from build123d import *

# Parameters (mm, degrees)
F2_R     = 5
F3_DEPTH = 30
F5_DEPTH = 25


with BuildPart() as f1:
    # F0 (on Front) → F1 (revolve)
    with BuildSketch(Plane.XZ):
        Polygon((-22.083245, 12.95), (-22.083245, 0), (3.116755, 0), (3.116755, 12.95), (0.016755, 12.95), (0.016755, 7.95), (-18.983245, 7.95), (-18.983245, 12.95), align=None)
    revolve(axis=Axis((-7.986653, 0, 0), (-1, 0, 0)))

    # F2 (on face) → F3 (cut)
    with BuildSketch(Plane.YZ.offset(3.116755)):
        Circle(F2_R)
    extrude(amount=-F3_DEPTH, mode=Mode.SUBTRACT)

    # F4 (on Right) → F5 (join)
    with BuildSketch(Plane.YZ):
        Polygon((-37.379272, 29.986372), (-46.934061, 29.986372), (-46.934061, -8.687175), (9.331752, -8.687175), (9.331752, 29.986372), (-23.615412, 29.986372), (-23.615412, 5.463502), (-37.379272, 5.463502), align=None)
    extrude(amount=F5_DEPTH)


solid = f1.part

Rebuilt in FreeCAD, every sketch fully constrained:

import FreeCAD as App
import Part
import Sketcher
from FreeCAD import Vector
Q = App.Units.Quantity


def add_polygon(sketch, points):
    """Adds a closed chain of lines whose ends are joined by coincident constraints."""
    first, n = sketch.GeometryCount, len(points)
    for a, b in zip(points, points[1:] + points[:1]):
        sketch.addGeometry(Part.LineSegment(App.Vector(*a, 0), App.Vector(*b, 0)), False)
    for i in range(n):
        sketch.addConstraint(Sketcher.Constraint("Coincident", first + i, 2, first + (i + 1) % n, 1))

doc = App.newDocument("Part")
body = doc.addObject("PartDesign::Body", "Body")

# Sketch on XZ plane
sketch1 = doc.addObject("Sketcher::SketchObject", "Sketch")
body.addObject(sketch1)
sketch1.AttachmentSupport = (doc.XZ_Plane, [""])
sketch1.MapMode = "FlatFace"
add_polygon(sketch1, [(-22.1, 12.9), (-22.1, 0), (3.1, 0), (3.1, 12.9), (0, 12.9), (0, 8), (-19, 8), (-19, 12.9)])  # lines 0-7
sketch1.addConstraint(Sketcher.Constraint("Vertical", 0))
sketch1.addConstraint(Sketcher.Constraint("Horizontal", 1))
sketch1.addConstraint(Sketcher.Constraint("Vertical", 2))
sketch1.addConstraint(Sketcher.Constraint("Horizontal", 3))
sketch1.addConstraint(Sketcher.Constraint("Vertical", 4))
sketch1.addConstraint(Sketcher.Constraint("Horizontal", 5))
sketch1.addConstraint(Sketcher.Constraint("Vertical", 6))
sketch1.addConstraint(Sketcher.Constraint("Horizontal", 7))
sketch1.addConstraint(Sketcher.Constraint("PointOnObject", 0, 2, -1))
sketch1.addConstraint(Sketcher.Constraint("Horizontal", 3, 2, 6, 2))
sketch1.addConstraint(Sketcher.Constraint("Equal", 3, 7))
sketch1.addConstraint(Sketcher.Constraint("DistanceX", 5, 2, 5, 1, Q("19 mm")))
sketch1.addConstraint(Sketcher.Constraint("DistanceY", 4, 2, 4, 1, Q("5 mm")))
sketch1.addConstraint(Sketcher.Constraint("DistanceX", 1, 1, 1, 2, Q("25.2 mm")))
sketch1.addConstraint(Sketcher.Constraint("DistanceY", 0, 2, 0, 1, Q("12.95 mm")))
sketch1.addConstraint(Sketcher.Constraint("DistanceX", 0, 2, -1, 1, Q("22.083245 mm")))
revolution = doc.addObject("PartDesign::Revolution", "Revolution")
body.addObject(revolution)
revolution.Profile = sketch1
revolution.ReferenceAxis = (sketch1, ["H_Axis"])
revolution.Angle = 360

# Sketch on YZ plane
sketch2 = doc.addObject("Sketcher::SketchObject", "Sketch001")
body.addObject(sketch2)
sketch2.AttachmentSupport = (doc.YZ_Plane, [""])
sketch2.MapMode = "FlatFace"
sketch2.AttachmentOffset = App.Placement(Vector(0, 0, 3.116755), App.Rotation())
sketch2.addGeometry(Part.Circle(Vector(0, 0, 0), Vector(0, 0, 1), 5), False)
sketch2.addConstraint(Sketcher.Constraint("Coincident", 0, 3, -1, 1))
sketch2.addConstraint(Sketcher.Constraint("Diameter", 0, Q("10 mm")))
pocket1 = doc.addObject("PartDesign::Pocket", "Pocket")
body.addObject(pocket1)
pocket1.Profile = sketch2
pocket1.Length = 30

# Sketch on YZ plane
sketch3 = doc.addObject("Sketcher::SketchObject", "Sketch002")
body.addObject(sketch3)
sketch3.AttachmentSupport = (doc.YZ_Plane, [""])
sketch3.MapMode = "FlatFace"
add_polygon(sketch3, [(-37, 30), (-47, 30), (-47, -9), (9, -9), (9, 30), (-24, 30), (-24, 5), (-37, 5)])  # lines 0-7
sketch3.addConstraint(Sketcher.Constraint("Horizontal", 0))
sketch3.addConstraint(Sketcher.Constraint("Vertical", 1))
sketch3.addConstraint(Sketcher.Constraint("Horizontal", 2))
sketch3.addConstraint(Sketcher.Constraint("Vertical", 3))
sketch3.addConstraint(Sketcher.Constraint("Horizontal", 4))
sketch3.addConstraint(Sketcher.Constraint("Vertical", 5))
sketch3.addConstraint(Sketcher.Constraint("Horizontal", 6))
sketch3.addConstraint(Sketcher.Constraint("Vertical", 7))
sketch3.addConstraint(Sketcher.Constraint("Horizontal", 0, 2, 3, 2))
sketch3.addConstraint(Sketcher.Constraint("DistanceX", 0, 2, 0, 1, Q("9.554789 mm")))
sketch3.addConstraint(Sketcher.Constraint("DistanceX", 6, 2, 6, 1, Q("13.76386 mm")))
sketch3.addConstraint(Sketcher.Constraint("DistanceY", 5, 2, 5, 1, Q("24.52287 mm")))
sketch3.addConstraint(Sketcher.Constraint("DistanceX", 2, 1, 2, 2, Q("56.265813 mm")))
sketch3.addConstraint(Sketcher.Constraint("DistanceY", 1, 2, 1, 1, Q("38.673547 mm")))
sketch3.addConstraint(Sketcher.Constraint("DistanceX", 0, 2, -1, 1, Q("46.934061 mm")))
sketch3.addConstraint(Sketcher.Constraint("DistanceY", -1, 1, 0, 2, Q("29.986372 mm")))
pad1 = doc.addObject("PartDesign::Pad", "Pad")
body.addObject(pad1)
pad1.Profile = sketch3
pad1.Length = 25

doc.recompute()
